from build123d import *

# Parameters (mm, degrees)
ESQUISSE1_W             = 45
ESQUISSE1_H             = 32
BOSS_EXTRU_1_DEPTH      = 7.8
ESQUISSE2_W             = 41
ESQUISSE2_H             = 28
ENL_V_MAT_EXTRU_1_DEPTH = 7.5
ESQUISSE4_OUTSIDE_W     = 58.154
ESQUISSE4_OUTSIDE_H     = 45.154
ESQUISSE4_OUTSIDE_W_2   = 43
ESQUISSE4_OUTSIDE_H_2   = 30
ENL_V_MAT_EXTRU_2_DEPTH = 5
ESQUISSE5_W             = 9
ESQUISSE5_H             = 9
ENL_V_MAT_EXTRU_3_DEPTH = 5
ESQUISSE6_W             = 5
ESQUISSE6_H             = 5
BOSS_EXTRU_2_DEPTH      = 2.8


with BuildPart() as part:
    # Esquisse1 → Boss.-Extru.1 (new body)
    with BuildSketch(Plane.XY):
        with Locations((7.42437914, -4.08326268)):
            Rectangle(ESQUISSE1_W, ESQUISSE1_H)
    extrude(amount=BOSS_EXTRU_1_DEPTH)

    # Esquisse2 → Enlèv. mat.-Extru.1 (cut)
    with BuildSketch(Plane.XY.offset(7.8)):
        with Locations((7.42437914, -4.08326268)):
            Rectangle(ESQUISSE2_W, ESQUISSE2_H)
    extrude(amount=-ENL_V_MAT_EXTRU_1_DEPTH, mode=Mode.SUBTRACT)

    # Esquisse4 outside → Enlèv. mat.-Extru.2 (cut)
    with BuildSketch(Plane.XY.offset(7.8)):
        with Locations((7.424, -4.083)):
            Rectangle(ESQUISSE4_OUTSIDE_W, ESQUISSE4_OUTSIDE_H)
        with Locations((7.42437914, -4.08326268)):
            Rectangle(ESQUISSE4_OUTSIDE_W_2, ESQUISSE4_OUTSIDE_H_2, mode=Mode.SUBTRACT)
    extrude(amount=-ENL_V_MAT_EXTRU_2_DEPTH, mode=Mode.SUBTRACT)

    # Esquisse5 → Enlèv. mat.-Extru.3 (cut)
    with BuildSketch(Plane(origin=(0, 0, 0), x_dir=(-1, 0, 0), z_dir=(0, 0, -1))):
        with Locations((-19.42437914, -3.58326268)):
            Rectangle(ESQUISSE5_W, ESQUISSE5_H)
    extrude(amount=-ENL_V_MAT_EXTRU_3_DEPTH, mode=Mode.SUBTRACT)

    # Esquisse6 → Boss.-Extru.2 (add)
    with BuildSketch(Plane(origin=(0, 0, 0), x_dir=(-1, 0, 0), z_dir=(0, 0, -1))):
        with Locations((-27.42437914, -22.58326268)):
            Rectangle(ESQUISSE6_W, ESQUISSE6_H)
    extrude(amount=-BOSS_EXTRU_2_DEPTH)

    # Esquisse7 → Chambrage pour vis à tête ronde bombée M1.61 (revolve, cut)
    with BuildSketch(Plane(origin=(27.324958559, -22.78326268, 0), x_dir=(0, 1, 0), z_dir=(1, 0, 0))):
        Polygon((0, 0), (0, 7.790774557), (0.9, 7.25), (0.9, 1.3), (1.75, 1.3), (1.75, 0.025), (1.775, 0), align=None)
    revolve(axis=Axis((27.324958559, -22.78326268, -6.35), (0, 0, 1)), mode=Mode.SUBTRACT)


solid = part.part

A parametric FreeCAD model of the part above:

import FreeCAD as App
import Part
import Sketcher
from FreeCAD import Vector
Q = App.Units.Quantity


def add_polygon(sketch, points):
    """Adds a closed chain of lines whose ends are joined by coincident constraints."""
    first, n = sketch.GeometryCount, len(points)
    for a, b in zip(points, points[1:] + points[:1]):
        sketch.addGeometry(Part.LineSegment(App.Vector(*a, 0), App.Vector(*b, 0)), False)
    for i in range(n):
        sketch.addConstraint(Sketcher.Constraint("Coincident", first + i, 2, first + (i + 1) % n, 1))

doc = App.newDocument("Part")
params = doc.addObject("Spreadsheet::Sheet", "Params")
for row, (alias, value) in enumerate([
    ("sketch1_width", "45 mm"),
    ("sketch1_height", "32 mm"),
    ("pad1_length", "7.8 mm"),
    ("sketch2_width", "41 mm"),
    ("sketch2_height", "28 mm"),
    ("pocket1_length", "7.5 mm"),
    ("sketch3_width", "43 mm"),
    ("sketch3_height", "30 mm"),
    ("pocket2_length", "5 mm"),
    ("sketch4_width", "9 mm"),
    ("pocket3_length", "5 mm"),
    ("sketch5_width", "5 mm"),
    ("pad2_length", "2.8 mm"),
    ("sketch6_width", "0.85 mm"),
    ("sketch6_height", "5.95 mm"),
    ("groove_angle", "360 deg"),
], start=1):
    params.set(f"A{row}", alias)
    params.set(f"B{row}", "=" + value)
    params.setAlias(f"B{row}", alias)

body = doc.addObject("PartDesign::Body", "Body")

# Sketch on XY plane
sketch1 = doc.addObject("Sketcher::SketchObject", "Sketch")
body.addObject(sketch1)
sketch1.AttachmentSupport = (doc.XY_Plane, [""])
sketch1.MapMode = "FlatFace"
add_polygon(sketch1, [(-15, 12), (-15, -20), (30, -20), (30, 12)])  # lines 0-3
sketch1.addConstraint(Sketcher.Constraint("Vertical", 0))
sketch1.addConstraint(Sketcher.Constraint("Horizontal", 1))
sketch1.addConstraint(Sketcher.Constraint("Vertical", 2))
sketch1.addConstraint(Sketcher.Constraint("Horizontal", 3))
sketch1.addConstraint(Sketcher.Constraint("DistanceX", 1, 1, 1, 2, Q("45 mm")))
sketch1.addConstraint(Sketcher.Constraint("DistanceY", 0, 2, 0, 1, Q("32 mm")))
sketch1.addConstraint(Sketcher.Constraint("DistanceX", 0, 2, -1, 1, Q("15.075621 mm")))
sketch1.addConstraint(Sketcher.Constraint("DistanceY", 0, 2, -1, 1, Q("20.083263 mm")))
sketch1.setExpression("Constraints[8]", "Params.sketch1_width")
sketch1.setExpression("Constraints[9]", "Params.sketch1_height")
pad1 = doc.addObject("PartDesign::Pad", "Pad")
body.addObject(pad1)
pad1.Profile = sketch1
pad1.setExpression("Length", "Params.pad1_length")

# Sketch on XY plane
sketch2 = doc.addObject("Sketcher::SketchObject", "Sketch001")
body.addObject(sketch2)
sketch2.AttachmentSupport = (doc.XY_Plane, [""])
sketch2.MapMode = "FlatFace"
sketch2.AttachmentOffset = App.Placement(Vector(0, 0, 7.8), App.Rotation())
add_polygon(sketch2, [(-13, 10), (-13, -18), (28, -18), (28, 10)])  # lines 0-3
sketch2.addConstraint(Sketcher.Constraint("Vertical", 0))
sketch2.addConstraint(Sketcher.Constraint("Horizontal", 1))
sketch2.addConstraint(Sketcher.Constraint("Vertical", 2))
sketch2.addConstraint(Sketcher.Constraint("Horizontal", 3))
sketch2.addConstraint(Sketcher.Constraint("DistanceX", 1, 1, 1, 2, Q("41 mm")))
sketch2.addConstraint(Sketcher.Constraint("DistanceY", 0, 2, 0, 1, Q("28 mm")))
sketch2.addConstraint(Sketcher.Constraint("DistanceX", 0, 2, -1, 1, Q("13.075621 mm")))
sketch2.addConstraint(Sketcher.Constraint("DistanceY", 0, 2, -1, 1, Q("18.083263 mm")))
sketch2.setExpression("Constraints[8]", "Params.sketch2_width")
sketch2.setExpression("Constraints[9]", "Params.sketch2_height")
pocket1 = doc.addObject("PartDesign::Pocket", "Pocket")
body.addObject(pocket1)
pocket1.Profile = sketch2
pocket1.setExpression("Length", "Params.pocket1_length")

# Sketch on XY plane
sketch3 = doc.addObject("Sketcher::SketchObject", "Sketch002")
body.addObject(sketch3)
sketch3.AttachmentSupport = (doc.XY_Plane, [""])
sketch3.MapMode = "FlatFace"
sketch3.AttachmentOffset = App.Placement(Vector(0, 0, 7.8), App.Rotation())
add_polygon(sketch3, [(-22, 18), (-22, -27), (37, -27), (37, 18)])  # lines 0-3
add_polygon(sketch3, [(29, -19), (-14, -19), (-14, 11), (29, 11)])  # lines 4-7
sketch3.addConstraint(Sketcher.Constraint("Vertical", 0))
sketch3.addConstraint(Sketcher.Constraint("Horizontal", 1))
sketch3.addConstraint(Sketcher.Constraint("Vertical", 2))
sketch3.addConstraint(Sketcher.Constraint("Horizontal", 3))
sketch3.addConstraint(Sketcher.Constraint("Horizontal", 4))
sketch3.addConstraint(Sketcher.Constraint("Vertical", 5))
sketch3.addConstraint(Sketcher.Constraint("Horizontal", 6))
sketch3.addConstraint(Sketcher.Constraint("Vertical", 7))
sketch3.addConstraint(Sketcher.Constraint("DistanceX", 4, 2, 4, 1, Q("43 mm")))
sketch3.addConstraint(Sketcher.Constraint("DistanceY", 5, 1, 5, 2, Q("30 mm")))
sketch3.addConstraint(Sketcher.Constraint("DistanceX", 1, 1, 1, 2, Q("58.154 mm")))
sketch3.addConstraint(Sketcher.Constraint("DistanceY", 0, 2, 0, 1, Q("45.154 mm")))
sketch3.addConstraint(Sketcher.Constraint("DistanceY", 0, 2, -1, 1, Q("26.66 mm")))
sketch3.addConstraint(Sketcher.Constraint("DistanceX", 0, 2, -1, 1, Q("21.653 mm")))
sketch3.addConstraint(Sketcher.Constraint("DistanceX", 4, 2, -1, 1, Q("14.075621 mm")))
sketch3.addConstraint(Sketcher.Constraint("DistanceY", 4, 2, -1, 1, Q("19.083263 mm")))
sketch3.setExpression("Constraints[16]", "Params.sketch3_width")
sketch3.setExpression("Constraints[17]", "Params.sketch3_height")
pocket2 = doc.addObject("PartDesign::Pocket", "Pocket001")
body.addObject(pocket2)
pocket2.Profile = sketch3
pocket2.setExpression("Length", "Params.pocket2_length")

# Sketch on XY plane
sketch4 = doc.addObject("Sketcher::SketchObject", "Sketch003")
body.addObject(sketch4)
sketch4.AttachmentSupport = (doc.XY_Plane, [""])
sketch4.MapMode = "FlatFace"
add_polygon(sketch4, [(24, 1), (24, -8), (15, -8), (15, 1)])  # lines 0-3
sketch4.addConstraint(Sketcher.Constraint("Vertical", 0))
sketch4.addConstraint(Sketcher.Constraint("Horizontal", 1))
sketch4.addConstraint(Sketcher.Constraint("Vertical", 2))
sketch4.addConstraint(Sketcher.Constraint("Horizontal", 3))
sketch4.addConstraint(Sketcher.Constraint("Equal", 3, 0))
sketch4.addConstraint(Sketcher.Constraint("DistanceX", 1, 2, 1, 1, Q("9 mm")))
sketch4.addConstraint(Sketcher.Constraint("DistanceX", -1, 1, 0, 2, Q("23.924379 mm")))
sketch4.addConstraint(Sketcher.Constraint("DistanceY", 0, 2, -1, 1, Q("8.083263 mm")))
sketch4.setExpression("Constraints[9]", "Params.sketch4_width")
pocket3 = doc.addObject("PartDesign::Pocket", "Pocket002")
body.addObject(pocket3)
pocket3.Profile = sketch4
pocket3.setExpression("Length", "Params.pocket3_length")
pocket3.Reversed = True

# Sketch on XY plane
sketch5 = doc.addObject("Sketcher::SketchObject", "Sketch004")
body.addObject(sketch5)
sketch5.AttachmentSupport = (doc.XY_Plane, [""])
sketch5.MapMode = "FlatFace"
add_polygon(sketch5, [(30, -20), (30, -25), (25, -25), (25, -20)])  # lines 0-3
sketch5.addConstraint(Sketcher.Constraint("Vertical", 0))
sketch5.addConstraint(Sketcher.Constraint("Horizontal", 1))
sketch5.addConstraint(Sketcher.Constraint("Vertical", 2))
sketch5.addConstraint(Sketcher.Constraint("Horizontal", 3))
sketch5.addConstraint(Sketcher.Constraint("Equal", 3, 0))
sketch5.addConstraint(Sketcher.Constraint("DistanceX", 1, 2, 1, 1, Q("5 mm")))
sketch5.addConstraint(Sketcher.Constraint("DistanceX", -1, 1, 0, 2, Q("29.924379 mm")))
sketch5.addConstraint(Sketcher.Constraint("DistanceY", 0, 2, -1, 1, Q("25.083263 mm")))
sketch5.setExpression("Constraints[9]", "Params.sketch5_width")
pad2 = doc.addObject("PartDesign::Pad", "Pad001")
body.addObject(pad2)
pad2.Profile = sketch5
pad2.setExpression("Length", "Params.pad2_length")

# Sketch on YZ plane
sketch6 = doc.addObject("Sketcher::SketchObject", "Sketch005")
body.addObject(sketch6)
sketch6.AttachmentSupport = (doc.YZ_Plane, [""])
sketch6.MapMode = "FlatFace"
sketch6.AttachmentOffset = App.Placement(Vector(0, 0, 27.324959), App.Rotation())
add_polygon(sketch6, [(-22.783, 7.791), (-22.783, 0), (-21.008, 0), (-21.033, 0.025), (-21.033, 1.3), (-21.883, 1.3), (-21.883, 7.25)])  # lines 0-6
sketch6.addGeometry(Part.LineSegment(Vector(-22.783, 0, 0), Vector(-22.783, 7.791, 0)), True)  # axis
sketch6.addConstraint(Sketcher.Constraint("Vertical", 0))
sketch6.addConstraint(Sketcher.Constraint("Horizontal", 1))
sketch6.addConstraint(Sketcher.Constraint("Vertical", 3))
sketch6.addConstraint(Sketcher.Constraint("Horizontal", 4))
sketch6.addConstraint(Sketcher.Constraint("Vertical", 5))
sketch6.addConstraint(Sketcher.Constraint("Vertical", 7))
sketch6.addConstraint(Sketcher.Constraint("Coincident", 7, 1, 0, 2))
sketch6.addConstraint(Sketcher.Constraint("PointOnObject", 0, 2, -1))
sketch6.addConstraint(Sketcher.Constraint("Equal", 0, 7))
sketch6.addConstraint(Sketcher.Constraint("Angle", 2, Q("135 deg")))
sketch6.addConstraint(Sketcher.Constraint("Angle", 6, Q("149 deg")))
sketch6.addConstraint(Sketcher.Constraint("DistanceX", 4, 2, 4, 1, Q("0.85 mm")))
sketch6.addConstraint(Sketcher.Constraint("DistanceY", 5, 1, 5, 2, Q("5.95 mm")))
sketch6.addConstraint(Sketcher.Constraint("DistanceY", -1, 1, 3, 2, Q("1.3 mm")))
sketch6.addConstraint(Sketcher.Constraint("DistanceX", 0, 2, 4, 2, Q("0.9 mm")))
sketch6.addConstraint(Sketcher.Constraint("DistanceX", 1, 1, 1, 2, Q("1.775 mm")))
sketch6.addConstraint(Sketcher.Constraint("DistanceX", 0, 2, -1, 1, Q("22.783263 mm")))
sketch6.setExpression("Constraints[18]", "Params.sketch6_width")
sketch6.setExpression("Constraints[19]", "Params.sketch6_height")
groove = doc.addObject("PartDesign::Groove", "Groove")
body.addObject(groove)
groove.Profile = sketch6
groove.ReferenceAxis = (sketch6, ["Axis0"])
groove.setExpression("Angle", "Params.groove_angle")

doc.recompute()
